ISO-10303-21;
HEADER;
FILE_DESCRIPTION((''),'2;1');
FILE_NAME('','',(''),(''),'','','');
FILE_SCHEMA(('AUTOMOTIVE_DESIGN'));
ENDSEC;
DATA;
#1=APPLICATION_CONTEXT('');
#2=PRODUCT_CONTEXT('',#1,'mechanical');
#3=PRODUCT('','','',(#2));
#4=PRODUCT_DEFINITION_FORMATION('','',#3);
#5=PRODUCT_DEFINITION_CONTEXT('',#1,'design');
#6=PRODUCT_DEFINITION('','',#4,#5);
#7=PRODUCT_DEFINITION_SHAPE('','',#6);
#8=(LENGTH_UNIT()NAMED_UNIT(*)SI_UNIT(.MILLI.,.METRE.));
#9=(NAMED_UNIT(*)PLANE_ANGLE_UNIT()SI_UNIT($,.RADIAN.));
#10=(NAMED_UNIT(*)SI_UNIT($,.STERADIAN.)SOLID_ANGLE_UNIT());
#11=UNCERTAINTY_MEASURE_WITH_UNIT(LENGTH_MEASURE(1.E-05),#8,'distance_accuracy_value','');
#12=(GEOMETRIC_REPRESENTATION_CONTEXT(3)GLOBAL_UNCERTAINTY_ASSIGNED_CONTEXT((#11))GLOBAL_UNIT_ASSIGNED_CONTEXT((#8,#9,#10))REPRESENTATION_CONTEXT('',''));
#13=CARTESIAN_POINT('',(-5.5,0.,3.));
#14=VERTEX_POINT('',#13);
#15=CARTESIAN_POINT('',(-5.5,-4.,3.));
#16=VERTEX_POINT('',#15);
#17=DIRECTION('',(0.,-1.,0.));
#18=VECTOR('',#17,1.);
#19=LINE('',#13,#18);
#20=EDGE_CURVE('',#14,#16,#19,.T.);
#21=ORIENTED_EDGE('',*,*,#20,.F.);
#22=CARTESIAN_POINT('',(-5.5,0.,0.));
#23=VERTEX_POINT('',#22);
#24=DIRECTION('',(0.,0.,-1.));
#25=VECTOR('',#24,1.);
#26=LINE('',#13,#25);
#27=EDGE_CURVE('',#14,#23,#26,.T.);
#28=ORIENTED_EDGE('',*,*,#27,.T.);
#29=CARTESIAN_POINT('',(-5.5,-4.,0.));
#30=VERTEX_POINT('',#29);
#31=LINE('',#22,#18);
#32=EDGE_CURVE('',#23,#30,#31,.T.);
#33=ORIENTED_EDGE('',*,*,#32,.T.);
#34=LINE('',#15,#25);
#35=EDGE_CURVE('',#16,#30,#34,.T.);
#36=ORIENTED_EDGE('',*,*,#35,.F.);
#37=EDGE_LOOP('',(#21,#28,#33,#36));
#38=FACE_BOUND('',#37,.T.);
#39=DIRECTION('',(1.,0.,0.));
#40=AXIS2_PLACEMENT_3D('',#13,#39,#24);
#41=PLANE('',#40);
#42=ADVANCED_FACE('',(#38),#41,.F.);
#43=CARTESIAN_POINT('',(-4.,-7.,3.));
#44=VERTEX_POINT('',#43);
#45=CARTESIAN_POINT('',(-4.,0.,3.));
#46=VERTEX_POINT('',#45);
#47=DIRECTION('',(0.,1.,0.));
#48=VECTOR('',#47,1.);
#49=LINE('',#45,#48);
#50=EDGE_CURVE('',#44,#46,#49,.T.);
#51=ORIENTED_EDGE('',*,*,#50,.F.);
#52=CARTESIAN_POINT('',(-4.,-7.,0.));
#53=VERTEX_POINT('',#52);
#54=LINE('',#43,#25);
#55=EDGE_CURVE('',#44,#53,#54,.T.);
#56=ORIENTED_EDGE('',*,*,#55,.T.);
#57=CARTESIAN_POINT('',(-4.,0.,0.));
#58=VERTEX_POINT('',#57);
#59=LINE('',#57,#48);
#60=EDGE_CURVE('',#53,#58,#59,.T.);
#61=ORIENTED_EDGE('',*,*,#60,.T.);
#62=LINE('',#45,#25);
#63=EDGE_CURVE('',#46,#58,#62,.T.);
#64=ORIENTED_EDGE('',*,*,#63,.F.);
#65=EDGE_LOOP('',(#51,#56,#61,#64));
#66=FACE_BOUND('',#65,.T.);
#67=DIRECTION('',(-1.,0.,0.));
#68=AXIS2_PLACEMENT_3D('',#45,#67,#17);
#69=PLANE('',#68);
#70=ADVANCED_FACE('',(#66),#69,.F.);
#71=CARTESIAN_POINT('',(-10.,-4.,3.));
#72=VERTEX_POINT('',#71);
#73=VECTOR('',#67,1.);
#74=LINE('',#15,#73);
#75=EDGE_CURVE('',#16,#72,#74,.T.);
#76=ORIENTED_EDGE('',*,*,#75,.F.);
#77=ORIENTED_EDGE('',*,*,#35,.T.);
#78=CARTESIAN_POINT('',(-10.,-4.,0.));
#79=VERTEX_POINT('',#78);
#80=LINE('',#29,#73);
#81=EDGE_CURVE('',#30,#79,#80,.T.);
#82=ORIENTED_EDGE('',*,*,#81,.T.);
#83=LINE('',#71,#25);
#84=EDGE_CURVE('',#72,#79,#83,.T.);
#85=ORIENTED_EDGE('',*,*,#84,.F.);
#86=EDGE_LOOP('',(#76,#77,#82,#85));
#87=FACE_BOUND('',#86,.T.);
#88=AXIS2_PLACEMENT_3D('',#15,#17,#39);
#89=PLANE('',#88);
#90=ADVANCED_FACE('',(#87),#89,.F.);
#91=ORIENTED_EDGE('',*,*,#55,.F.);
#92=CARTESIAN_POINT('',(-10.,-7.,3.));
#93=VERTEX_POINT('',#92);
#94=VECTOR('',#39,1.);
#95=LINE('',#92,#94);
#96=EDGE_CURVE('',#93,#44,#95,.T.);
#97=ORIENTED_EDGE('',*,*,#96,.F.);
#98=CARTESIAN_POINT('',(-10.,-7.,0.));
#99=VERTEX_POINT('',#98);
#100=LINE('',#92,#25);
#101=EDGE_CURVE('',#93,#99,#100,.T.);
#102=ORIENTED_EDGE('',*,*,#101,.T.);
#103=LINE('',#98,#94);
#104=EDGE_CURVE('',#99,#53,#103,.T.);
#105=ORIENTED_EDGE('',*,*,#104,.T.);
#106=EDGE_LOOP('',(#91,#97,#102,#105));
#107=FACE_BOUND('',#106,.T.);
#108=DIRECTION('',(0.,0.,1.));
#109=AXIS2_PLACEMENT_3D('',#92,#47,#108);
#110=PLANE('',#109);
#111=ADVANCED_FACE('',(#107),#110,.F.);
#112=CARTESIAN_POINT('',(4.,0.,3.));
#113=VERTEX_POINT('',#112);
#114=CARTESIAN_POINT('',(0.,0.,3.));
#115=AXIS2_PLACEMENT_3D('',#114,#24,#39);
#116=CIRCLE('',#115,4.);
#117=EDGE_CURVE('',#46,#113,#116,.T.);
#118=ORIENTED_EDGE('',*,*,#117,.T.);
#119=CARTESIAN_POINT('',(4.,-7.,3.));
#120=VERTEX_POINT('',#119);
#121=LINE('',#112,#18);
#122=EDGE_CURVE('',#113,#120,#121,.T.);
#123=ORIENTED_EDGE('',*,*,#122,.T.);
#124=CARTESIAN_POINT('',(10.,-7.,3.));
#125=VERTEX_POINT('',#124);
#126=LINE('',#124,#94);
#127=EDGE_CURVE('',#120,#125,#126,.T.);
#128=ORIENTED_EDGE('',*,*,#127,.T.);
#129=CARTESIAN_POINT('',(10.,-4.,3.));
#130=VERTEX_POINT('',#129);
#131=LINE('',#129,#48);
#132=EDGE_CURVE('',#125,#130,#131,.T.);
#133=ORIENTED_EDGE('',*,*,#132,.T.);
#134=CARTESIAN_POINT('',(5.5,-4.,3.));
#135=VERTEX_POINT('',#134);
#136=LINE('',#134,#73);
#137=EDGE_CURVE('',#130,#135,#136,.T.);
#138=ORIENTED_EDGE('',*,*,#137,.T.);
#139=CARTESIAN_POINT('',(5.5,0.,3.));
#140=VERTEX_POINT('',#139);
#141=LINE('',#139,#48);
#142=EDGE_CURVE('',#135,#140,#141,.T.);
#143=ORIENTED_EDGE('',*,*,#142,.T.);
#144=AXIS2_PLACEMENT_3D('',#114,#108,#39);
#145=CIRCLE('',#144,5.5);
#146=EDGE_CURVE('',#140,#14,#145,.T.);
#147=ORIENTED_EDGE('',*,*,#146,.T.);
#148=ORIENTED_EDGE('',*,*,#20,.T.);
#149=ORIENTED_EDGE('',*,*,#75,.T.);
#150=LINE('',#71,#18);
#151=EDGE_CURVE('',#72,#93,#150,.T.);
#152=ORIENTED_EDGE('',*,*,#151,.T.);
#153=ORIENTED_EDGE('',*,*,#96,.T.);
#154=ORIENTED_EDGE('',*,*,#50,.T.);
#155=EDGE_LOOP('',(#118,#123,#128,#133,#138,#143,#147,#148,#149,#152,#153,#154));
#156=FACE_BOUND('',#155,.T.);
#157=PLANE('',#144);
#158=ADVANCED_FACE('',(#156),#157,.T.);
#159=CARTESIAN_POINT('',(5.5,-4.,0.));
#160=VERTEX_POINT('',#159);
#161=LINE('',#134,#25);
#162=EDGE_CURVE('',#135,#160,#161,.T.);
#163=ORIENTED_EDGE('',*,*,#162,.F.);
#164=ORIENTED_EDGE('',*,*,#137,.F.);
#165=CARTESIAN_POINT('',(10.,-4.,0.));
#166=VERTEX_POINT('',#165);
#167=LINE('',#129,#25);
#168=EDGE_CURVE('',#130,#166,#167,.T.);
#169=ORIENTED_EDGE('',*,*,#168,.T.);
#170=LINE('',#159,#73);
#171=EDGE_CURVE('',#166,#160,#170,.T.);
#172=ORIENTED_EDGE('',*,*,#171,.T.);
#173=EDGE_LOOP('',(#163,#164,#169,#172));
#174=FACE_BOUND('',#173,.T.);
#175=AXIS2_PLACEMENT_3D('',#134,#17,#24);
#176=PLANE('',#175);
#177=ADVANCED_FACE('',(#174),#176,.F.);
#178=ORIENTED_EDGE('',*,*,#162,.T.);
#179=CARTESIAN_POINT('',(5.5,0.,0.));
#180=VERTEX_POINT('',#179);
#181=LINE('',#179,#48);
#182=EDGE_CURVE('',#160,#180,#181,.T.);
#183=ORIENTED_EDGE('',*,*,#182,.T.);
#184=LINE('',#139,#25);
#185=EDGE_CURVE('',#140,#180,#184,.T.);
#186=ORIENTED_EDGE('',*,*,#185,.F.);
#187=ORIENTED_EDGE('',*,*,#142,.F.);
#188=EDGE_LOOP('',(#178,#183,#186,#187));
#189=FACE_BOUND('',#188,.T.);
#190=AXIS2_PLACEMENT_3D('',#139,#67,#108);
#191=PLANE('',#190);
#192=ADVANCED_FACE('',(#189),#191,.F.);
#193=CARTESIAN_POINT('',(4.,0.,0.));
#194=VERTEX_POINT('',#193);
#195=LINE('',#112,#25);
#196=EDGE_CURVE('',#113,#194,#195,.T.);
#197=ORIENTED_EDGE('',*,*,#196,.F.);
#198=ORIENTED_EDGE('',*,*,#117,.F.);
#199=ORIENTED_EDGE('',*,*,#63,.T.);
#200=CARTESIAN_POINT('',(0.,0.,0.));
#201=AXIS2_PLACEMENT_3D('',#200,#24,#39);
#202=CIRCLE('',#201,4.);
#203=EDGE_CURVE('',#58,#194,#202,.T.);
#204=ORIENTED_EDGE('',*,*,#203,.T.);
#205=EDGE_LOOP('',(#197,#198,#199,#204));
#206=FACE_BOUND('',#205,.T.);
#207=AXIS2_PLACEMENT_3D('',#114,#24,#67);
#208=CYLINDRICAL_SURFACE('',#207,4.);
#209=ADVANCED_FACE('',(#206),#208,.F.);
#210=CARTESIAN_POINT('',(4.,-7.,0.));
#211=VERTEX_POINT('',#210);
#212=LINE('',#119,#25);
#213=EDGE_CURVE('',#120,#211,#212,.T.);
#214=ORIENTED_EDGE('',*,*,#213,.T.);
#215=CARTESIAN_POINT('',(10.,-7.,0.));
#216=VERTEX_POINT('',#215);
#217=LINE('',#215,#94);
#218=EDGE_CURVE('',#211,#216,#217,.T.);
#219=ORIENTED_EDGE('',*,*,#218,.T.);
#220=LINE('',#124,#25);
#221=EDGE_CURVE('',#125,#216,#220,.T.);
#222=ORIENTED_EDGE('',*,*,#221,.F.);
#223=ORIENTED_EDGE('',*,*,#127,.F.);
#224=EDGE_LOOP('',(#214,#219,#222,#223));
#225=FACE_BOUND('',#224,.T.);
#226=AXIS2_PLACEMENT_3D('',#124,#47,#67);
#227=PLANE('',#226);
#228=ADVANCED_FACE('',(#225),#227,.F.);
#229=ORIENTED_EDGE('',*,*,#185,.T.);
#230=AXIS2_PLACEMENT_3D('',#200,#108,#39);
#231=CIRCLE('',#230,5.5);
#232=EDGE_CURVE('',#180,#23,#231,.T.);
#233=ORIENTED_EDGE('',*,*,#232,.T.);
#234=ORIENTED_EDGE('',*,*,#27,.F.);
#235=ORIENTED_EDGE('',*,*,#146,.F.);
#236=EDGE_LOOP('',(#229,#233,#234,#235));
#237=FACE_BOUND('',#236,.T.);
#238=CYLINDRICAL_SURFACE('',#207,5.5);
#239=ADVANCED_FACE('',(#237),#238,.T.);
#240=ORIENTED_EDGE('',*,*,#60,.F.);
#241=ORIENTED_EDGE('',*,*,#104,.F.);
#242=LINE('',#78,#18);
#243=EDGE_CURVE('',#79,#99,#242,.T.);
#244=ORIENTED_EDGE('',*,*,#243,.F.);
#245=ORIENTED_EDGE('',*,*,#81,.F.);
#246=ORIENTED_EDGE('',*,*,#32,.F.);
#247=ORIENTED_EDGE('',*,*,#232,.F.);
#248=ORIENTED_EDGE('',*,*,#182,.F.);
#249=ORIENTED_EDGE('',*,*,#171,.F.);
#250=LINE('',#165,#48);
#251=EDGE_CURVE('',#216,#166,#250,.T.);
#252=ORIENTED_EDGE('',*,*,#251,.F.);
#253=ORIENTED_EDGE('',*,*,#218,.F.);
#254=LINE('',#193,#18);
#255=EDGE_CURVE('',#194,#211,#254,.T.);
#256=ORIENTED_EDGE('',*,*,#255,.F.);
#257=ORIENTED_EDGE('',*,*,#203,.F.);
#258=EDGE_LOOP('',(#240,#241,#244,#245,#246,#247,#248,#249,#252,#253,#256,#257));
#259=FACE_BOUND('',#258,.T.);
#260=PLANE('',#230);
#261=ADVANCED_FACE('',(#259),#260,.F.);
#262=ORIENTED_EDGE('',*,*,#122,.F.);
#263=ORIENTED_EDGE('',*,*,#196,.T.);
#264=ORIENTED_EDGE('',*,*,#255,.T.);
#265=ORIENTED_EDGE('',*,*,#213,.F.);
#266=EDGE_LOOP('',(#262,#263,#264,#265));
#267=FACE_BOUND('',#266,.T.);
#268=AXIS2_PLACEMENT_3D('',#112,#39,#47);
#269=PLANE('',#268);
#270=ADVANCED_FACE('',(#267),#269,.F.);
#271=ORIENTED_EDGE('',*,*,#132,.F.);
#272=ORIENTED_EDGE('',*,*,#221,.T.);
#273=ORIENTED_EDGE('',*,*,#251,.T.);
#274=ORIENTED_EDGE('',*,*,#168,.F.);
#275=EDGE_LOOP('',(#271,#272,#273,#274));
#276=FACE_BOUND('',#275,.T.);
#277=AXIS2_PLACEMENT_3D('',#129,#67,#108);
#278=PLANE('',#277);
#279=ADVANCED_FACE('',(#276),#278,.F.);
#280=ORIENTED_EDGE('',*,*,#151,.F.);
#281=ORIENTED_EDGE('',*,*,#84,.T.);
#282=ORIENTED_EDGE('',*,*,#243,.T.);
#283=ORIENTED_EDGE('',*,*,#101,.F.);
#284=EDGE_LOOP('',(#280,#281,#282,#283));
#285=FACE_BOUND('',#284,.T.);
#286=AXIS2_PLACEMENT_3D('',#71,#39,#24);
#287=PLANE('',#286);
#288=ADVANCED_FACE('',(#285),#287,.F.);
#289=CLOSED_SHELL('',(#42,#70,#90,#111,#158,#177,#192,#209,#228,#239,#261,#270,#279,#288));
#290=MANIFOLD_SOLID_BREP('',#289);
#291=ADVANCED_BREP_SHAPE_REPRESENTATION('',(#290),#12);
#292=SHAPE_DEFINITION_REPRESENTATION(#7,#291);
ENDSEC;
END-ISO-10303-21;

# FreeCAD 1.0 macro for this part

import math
import FreeCAD as App
import Part
import Sketcher
from FreeCAD import Vector

doc = App.newDocument("Part")
body = doc.addObject("PartDesign::Body", "Body")

# Sketch on XY plane
sketch1 = body.newObject("Sketcher::SketchObject", "Sketch")
sketch1.AttachmentSupport = (doc.getObject("XY_Plane"), [""])
sketch1.MapMode = "FlatFace"
sketch1.addGeometry([
    Part.LineSegment(Vector(-4, -7, 0), Vector(-4, 0, 0)),  # 0
    Part.ArcOfCircle(Part.Circle(Vector(0, 0, 0), Vector(0, 0, 1), 4), math.radians(0), math.radians(180)),  # 1
    Part.LineSegment(Vector(4, 0, 0), Vector(4, -7, 0)),  # 2
    Part.LineSegment(Vector(4, -7, 0), Vector(10, -7, 0)),  # 3
    Part.LineSegment(Vector(10, -7, 0), Vector(10, -4, 0)),  # 4
    Part.LineSegment(Vector(10, -4, 0), Vector(5.5, -4, 0)),  # 5
    Part.LineSegment(Vector(5.5, -4, 0), Vector(5.5, 0, 0)),  # 6
    Part.ArcOfCircle(Part.Circle(Vector(0, 0, 0), Vector(0, 0, 1), 5.5), math.radians(0), math.radians(180)),  # 7
    Part.LineSegment(Vector(-5.5, 0, 0), Vector(-5.5, -4, 0)),  # 8
    Part.LineSegment(Vector(-5.5, -4, 0), Vector(-10, -4, 0)),  # 9
    Part.LineSegment(Vector(-10, -4, 0), Vector(-10, -7, 0)),  # 10
    Part.LineSegment(Vector(-10, -7, 0), Vector(-4, -7, 0)),  # 11
], False)
sketch1.addConstraint([
    Sketcher.Constraint("Tangent", 0, 2, 1, 2),
    Sketcher.Constraint("Tangent", 1, 1, 2, 1),
    Sketcher.Constraint("Coincident", 2, 2, 3, 1),
    Sketcher.Constraint("Coincident", 3, 2, 4, 1),
    Sketcher.Constraint("Coincident", 4, 2, 5, 1),
    Sketcher.Constraint("Coincident", 5, 2, 6, 1),
    Sketcher.Constraint("Tangent", 6, 2, 7, 1),
    Sketcher.Constraint("Tangent", 7, 2, 8, 1),
    Sketcher.Constraint("Coincident", 8, 2, 9, 1),
    Sketcher.Constraint("Coincident", 9, 2, 10, 1),
    Sketcher.Constraint("Coincident", 10, 2, 11, 1),
    Sketcher.Constraint("Coincident", 11, 2, 0, 1),
    Sketcher.Constraint("Vertical", 0),
    Sketcher.Constraint("Vertical", 2),
    Sketcher.Constraint("Horizontal", 3),
    Sketcher.Constraint("Vertical", 4),
    Sketcher.Constraint("Horizontal", 5),
    Sketcher.Constraint("Vertical", 6),
    Sketcher.Constraint("Vertical", 8),
    Sketcher.Constraint("Horizontal", 9),
    Sketcher.Constraint("Vertical", 10),
    Sketcher.Constraint("Horizontal", 11),
    Sketcher.Constraint("Coincident", 1, 3, -1, 1),
    Sketcher.Constraint("Coincident", 7, 3, -1, 1),
    Sketcher.Constraint("Symmetric", 4, 2, 9, 2, -2),
    Sketcher.Constraint("Horizontal", 3, 2, 10, 2),
    Sketcher.Constraint("Radius", 1, 4.0),
    Sketcher.Constraint("Radius", 7, 5.5),
    Sketcher.Constraint("DistanceX", 3, 1, 3, 2, 6.0),
    Sketcher.Constraint("DistanceY", 0, 1, 0, 2, 7.0),
    Sketcher.Constraint("DistanceY", 4, 1, 4, 2, 3.0),
])
pad1 = body.newObject("PartDesign::Pad", "Pad")
pad1.Profile = sketch1
pad1.Length = 3

doc.recompute()
